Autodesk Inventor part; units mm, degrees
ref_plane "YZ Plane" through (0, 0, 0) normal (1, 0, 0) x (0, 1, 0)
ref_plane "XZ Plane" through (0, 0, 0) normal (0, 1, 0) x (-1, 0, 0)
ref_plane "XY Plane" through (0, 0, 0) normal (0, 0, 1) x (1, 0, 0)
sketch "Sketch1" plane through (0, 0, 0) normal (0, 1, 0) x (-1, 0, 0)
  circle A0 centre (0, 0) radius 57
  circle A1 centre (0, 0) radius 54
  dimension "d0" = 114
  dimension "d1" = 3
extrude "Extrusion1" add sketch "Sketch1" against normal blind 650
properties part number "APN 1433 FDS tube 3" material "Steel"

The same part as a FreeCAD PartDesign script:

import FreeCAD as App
import Part
import Sketcher

V = App.Vector
Q = App.Units.Quantity

doc = App.newDocument("Part")
body = doc.addObject("PartDesign::Body", "Body")

# Sketch on XZ plane
sketch1 = body.newObject("Sketcher::SketchObject", "Sketch")
sketch1.AttachmentSupport = (doc.getObject("XZ_Plane"), [""])
sketch1.MapMode = "FlatFace"
sketch1.addGeometry(Part.Circle(V(0, 0, 0), V(0, 0, 1), 57), False)
sketch1.addGeometry(Part.Circle(V(0, 0, 0), V(0, 0, 1), 54), False)
sketch1.addConstraint(Sketcher.Constraint("Coincident", 0, 3, -1, 1))
sketch1.addConstraint(Sketcher.Constraint("Coincident", 1, 3, -1, 1))
sketch1.addConstraint(Sketcher.Constraint("Diameter", 0, Q("114 mm")))
sketch1.addConstraint(Sketcher.Constraint("Diameter", 1, Q("108 mm")))
pad1 = body.newObject("PartDesign::Pad", "Pad")
pad1.Profile = sketch1
pad1.Length = 650

doc.recompute()
